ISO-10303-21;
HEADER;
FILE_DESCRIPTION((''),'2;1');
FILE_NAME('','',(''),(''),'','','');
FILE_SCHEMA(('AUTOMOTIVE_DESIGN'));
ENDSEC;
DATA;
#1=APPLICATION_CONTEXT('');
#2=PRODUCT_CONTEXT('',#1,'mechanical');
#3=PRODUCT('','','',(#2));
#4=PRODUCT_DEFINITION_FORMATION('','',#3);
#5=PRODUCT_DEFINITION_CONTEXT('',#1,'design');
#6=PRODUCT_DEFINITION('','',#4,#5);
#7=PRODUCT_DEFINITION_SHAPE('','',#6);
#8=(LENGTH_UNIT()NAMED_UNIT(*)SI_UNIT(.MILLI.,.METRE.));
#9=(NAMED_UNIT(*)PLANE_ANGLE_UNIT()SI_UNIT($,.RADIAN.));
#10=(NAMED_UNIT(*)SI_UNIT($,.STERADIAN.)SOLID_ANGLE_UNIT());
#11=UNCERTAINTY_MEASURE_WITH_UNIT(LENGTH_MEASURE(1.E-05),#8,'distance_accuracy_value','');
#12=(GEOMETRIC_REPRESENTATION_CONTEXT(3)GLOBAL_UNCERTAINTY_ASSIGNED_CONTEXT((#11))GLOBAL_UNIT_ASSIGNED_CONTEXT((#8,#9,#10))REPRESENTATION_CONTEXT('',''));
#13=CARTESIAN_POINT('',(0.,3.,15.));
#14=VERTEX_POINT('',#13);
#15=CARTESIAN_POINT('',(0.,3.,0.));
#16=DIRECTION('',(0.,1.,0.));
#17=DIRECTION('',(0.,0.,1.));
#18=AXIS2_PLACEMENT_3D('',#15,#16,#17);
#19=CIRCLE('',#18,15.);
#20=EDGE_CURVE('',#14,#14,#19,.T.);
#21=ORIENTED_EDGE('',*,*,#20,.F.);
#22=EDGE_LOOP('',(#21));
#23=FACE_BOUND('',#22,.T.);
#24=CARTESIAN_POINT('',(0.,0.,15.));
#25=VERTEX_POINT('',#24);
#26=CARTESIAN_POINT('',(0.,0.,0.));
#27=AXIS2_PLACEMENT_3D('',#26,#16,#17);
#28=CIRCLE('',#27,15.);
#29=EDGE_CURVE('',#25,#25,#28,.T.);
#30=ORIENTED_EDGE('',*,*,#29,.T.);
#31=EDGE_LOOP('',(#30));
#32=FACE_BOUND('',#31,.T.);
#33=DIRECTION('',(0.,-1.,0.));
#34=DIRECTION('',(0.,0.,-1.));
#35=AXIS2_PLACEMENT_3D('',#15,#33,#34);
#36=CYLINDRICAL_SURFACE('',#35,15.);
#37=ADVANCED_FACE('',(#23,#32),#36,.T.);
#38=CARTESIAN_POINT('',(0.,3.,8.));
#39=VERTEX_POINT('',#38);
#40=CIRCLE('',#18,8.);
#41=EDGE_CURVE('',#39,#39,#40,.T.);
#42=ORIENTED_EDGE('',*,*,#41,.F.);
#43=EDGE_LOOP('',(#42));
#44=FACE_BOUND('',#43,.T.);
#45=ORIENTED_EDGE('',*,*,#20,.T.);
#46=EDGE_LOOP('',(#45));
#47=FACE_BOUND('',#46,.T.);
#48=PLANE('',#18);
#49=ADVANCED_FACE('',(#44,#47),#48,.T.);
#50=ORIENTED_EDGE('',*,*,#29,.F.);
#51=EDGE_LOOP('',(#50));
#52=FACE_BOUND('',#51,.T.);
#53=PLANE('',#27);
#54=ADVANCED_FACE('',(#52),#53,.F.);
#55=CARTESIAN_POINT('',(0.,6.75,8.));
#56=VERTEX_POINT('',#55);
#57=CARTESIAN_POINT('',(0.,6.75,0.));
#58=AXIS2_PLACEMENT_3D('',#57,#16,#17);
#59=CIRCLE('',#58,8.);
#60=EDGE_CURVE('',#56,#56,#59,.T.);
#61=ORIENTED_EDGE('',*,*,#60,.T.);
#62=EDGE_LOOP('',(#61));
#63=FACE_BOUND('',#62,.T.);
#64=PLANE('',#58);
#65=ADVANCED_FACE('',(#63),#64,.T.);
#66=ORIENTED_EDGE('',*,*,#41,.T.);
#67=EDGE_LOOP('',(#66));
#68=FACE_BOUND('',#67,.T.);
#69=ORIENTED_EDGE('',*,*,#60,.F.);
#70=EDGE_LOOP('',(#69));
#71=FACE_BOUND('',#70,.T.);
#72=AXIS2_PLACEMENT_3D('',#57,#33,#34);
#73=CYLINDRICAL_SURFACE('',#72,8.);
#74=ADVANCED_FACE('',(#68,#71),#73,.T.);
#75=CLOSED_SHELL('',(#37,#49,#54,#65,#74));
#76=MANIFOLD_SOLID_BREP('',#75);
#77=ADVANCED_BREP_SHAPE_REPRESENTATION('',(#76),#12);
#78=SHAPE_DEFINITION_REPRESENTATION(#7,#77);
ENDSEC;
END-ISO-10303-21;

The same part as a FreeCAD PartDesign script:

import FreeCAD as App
import Part
import Sketcher
Q = App.Units.Quantity

doc = App.newDocument("Part")
body = doc.addObject("PartDesign::Body", "Body")

# Sketch on XZ plane
sketch1 = doc.addObject("Sketcher::SketchObject", "Sketch")
body.addObject(sketch1)
sketch1.AttachmentSupport = (doc.XZ_Plane, [""])
sketch1.MapMode = "FlatFace"
sketch1.addGeometry(Part.Circle(App.Vector(0, 0, 0), App.Vector(0, 0, 1), 15), False)
sketch1.addConstraint([
    Sketcher.Constraint("Coincident", 0, 3, -1, 1),
    Sketcher.Constraint("Diameter", 0, Q("30 mm")),
])
pad1 = doc.addObject("PartDesign::Pad", "Pad")
body.addObject(pad1)
pad1.Profile = sketch1
pad1.Length = 3
pad1.Reversed = True

# Sketch on XZ plane
sketch2 = doc.addObject("Sketcher::SketchObject", "Sketch001")
body.addObject(sketch2)
sketch2.AttachmentSupport = (doc.XZ_Plane, [""])
sketch2.MapMode = "FlatFace"
sketch2.AttachmentOffset = App.Placement(App.Vector(0, 0, -3), App.Rotation())
sketch2.addGeometry(Part.Circle(App.Vector(0, 0, 0), App.Vector(0, 0, 1), 8), False)
sketch2.addConstraint([
    Sketcher.Constraint("Coincident", 0, 3, -1, 1),
    Sketcher.Constraint("Diameter", 0, Q("16 mm")),
])
pad2 = doc.addObject("PartDesign::Pad", "Pad001")
body.addObject(pad2)
pad2.Profile = sketch2
pad2.Length = 3.75
pad2.Reversed = True

doc.recompute()
